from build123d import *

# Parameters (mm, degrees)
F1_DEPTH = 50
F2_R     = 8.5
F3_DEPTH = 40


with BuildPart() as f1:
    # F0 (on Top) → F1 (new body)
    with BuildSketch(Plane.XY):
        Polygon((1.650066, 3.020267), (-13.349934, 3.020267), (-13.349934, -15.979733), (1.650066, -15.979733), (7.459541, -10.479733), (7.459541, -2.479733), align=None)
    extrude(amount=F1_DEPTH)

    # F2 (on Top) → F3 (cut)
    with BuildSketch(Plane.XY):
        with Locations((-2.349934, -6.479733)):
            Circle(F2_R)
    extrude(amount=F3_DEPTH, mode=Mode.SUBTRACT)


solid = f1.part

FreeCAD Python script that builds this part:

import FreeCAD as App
import Part
import Sketcher
from FreeCAD import Vector

doc = App.newDocument("Part")
body = doc.addObject("PartDesign::Body", "Body")

# Sketch on XY plane
sketch1 = body.newObject("Sketcher::SketchObject", "Sketch")
sketch1.AttachmentSupport = (doc.getObject("XY_Plane"), [""])
sketch1.MapMode = "FlatFace"
sketch1.addGeometry([
    Part.LineSegment(Vector(2, 3, 0), Vector(-13, 3, 0)),  # 0
    Part.LineSegment(Vector(-13, 3, 0), Vector(-13, -16, 0)),  # 1
    Part.LineSegment(Vector(-13, -16, 0), Vector(2, -16, 0)),  # 2
    Part.LineSegment(Vector(2, -16, 0), Vector(7, -10, 0)),  # 3
    Part.LineSegment(Vector(7, -10, 0), Vector(7, -2, 0)),  # 4
    Part.LineSegment(Vector(7, -2, 0), Vector(2, 3, 0)),  # 5
], False)
sketch1.addConstraint([
    Sketcher.Constraint("Coincident", 0, 2, 1, 1),
    Sketcher.Constraint("Coincident", 1, 2, 2, 1),
    Sketcher.Constraint("Coincident", 2, 2, 3, 1),
    Sketcher.Constraint("Coincident", 3, 2, 4, 1),
    Sketcher.Constraint("Coincident", 4, 2, 5, 1),
    Sketcher.Constraint("Coincident", 5, 2, 0, 1),
    Sketcher.Constraint("Horizontal", 0),
    Sketcher.Constraint("Vertical", 1),
    Sketcher.Constraint("Horizontal", 2),
    Sketcher.Constraint("Vertical", 4),
    Sketcher.Constraint("Vertical", 2, 2, 5, 2),
    Sketcher.Constraint("Equal", 3, 5),
    Sketcher.Constraint("DistanceX", 0, 2, 0, 1, 15.0),
    Sketcher.Constraint("DistanceY", 1, 2, 1, 1, 19.0),
    Sketcher.Constraint("DistanceY", 4, 1, 4, 2, 8.0),
    Sketcher.Constraint("Distance", 3, 8.0),
    Sketcher.Constraint("DistanceX", -1, 1, 3, 2, 7.459541),
    Sketcher.Constraint("DistanceY", -1, 1, 0, 2, 3.020267),
])
pad1 = body.newObject("PartDesign::Pad", "Pad")
pad1.Profile = sketch1
pad1.Length = 50

# Sketch on XY plane
sketch2 = body.newObject("Sketcher::SketchObject", "Sketch001")
sketch2.AttachmentSupport = (doc.getObject("XY_Plane"), [""])
sketch2.MapMode = "FlatFace"
sketch2.addGeometry(Part.Circle(Vector(-2, -6, 0), Vector(0, 0, 1), 8), False)
sketch2.addConstraint([
    Sketcher.Constraint("Diameter", 0, 17.0),
    Sketcher.Constraint("DistanceX", 0, 3, -1, 1, 2.349934),
    Sketcher.Constraint("DistanceY", 0, 3, -1, 1, 6.479733),
])
pocket1 = body.newObject("PartDesign::Pocket", "Pocket")
pocket1.Profile = sketch2
pocket1.Length = 40
pocket1.Reversed = True

doc.recompute()
